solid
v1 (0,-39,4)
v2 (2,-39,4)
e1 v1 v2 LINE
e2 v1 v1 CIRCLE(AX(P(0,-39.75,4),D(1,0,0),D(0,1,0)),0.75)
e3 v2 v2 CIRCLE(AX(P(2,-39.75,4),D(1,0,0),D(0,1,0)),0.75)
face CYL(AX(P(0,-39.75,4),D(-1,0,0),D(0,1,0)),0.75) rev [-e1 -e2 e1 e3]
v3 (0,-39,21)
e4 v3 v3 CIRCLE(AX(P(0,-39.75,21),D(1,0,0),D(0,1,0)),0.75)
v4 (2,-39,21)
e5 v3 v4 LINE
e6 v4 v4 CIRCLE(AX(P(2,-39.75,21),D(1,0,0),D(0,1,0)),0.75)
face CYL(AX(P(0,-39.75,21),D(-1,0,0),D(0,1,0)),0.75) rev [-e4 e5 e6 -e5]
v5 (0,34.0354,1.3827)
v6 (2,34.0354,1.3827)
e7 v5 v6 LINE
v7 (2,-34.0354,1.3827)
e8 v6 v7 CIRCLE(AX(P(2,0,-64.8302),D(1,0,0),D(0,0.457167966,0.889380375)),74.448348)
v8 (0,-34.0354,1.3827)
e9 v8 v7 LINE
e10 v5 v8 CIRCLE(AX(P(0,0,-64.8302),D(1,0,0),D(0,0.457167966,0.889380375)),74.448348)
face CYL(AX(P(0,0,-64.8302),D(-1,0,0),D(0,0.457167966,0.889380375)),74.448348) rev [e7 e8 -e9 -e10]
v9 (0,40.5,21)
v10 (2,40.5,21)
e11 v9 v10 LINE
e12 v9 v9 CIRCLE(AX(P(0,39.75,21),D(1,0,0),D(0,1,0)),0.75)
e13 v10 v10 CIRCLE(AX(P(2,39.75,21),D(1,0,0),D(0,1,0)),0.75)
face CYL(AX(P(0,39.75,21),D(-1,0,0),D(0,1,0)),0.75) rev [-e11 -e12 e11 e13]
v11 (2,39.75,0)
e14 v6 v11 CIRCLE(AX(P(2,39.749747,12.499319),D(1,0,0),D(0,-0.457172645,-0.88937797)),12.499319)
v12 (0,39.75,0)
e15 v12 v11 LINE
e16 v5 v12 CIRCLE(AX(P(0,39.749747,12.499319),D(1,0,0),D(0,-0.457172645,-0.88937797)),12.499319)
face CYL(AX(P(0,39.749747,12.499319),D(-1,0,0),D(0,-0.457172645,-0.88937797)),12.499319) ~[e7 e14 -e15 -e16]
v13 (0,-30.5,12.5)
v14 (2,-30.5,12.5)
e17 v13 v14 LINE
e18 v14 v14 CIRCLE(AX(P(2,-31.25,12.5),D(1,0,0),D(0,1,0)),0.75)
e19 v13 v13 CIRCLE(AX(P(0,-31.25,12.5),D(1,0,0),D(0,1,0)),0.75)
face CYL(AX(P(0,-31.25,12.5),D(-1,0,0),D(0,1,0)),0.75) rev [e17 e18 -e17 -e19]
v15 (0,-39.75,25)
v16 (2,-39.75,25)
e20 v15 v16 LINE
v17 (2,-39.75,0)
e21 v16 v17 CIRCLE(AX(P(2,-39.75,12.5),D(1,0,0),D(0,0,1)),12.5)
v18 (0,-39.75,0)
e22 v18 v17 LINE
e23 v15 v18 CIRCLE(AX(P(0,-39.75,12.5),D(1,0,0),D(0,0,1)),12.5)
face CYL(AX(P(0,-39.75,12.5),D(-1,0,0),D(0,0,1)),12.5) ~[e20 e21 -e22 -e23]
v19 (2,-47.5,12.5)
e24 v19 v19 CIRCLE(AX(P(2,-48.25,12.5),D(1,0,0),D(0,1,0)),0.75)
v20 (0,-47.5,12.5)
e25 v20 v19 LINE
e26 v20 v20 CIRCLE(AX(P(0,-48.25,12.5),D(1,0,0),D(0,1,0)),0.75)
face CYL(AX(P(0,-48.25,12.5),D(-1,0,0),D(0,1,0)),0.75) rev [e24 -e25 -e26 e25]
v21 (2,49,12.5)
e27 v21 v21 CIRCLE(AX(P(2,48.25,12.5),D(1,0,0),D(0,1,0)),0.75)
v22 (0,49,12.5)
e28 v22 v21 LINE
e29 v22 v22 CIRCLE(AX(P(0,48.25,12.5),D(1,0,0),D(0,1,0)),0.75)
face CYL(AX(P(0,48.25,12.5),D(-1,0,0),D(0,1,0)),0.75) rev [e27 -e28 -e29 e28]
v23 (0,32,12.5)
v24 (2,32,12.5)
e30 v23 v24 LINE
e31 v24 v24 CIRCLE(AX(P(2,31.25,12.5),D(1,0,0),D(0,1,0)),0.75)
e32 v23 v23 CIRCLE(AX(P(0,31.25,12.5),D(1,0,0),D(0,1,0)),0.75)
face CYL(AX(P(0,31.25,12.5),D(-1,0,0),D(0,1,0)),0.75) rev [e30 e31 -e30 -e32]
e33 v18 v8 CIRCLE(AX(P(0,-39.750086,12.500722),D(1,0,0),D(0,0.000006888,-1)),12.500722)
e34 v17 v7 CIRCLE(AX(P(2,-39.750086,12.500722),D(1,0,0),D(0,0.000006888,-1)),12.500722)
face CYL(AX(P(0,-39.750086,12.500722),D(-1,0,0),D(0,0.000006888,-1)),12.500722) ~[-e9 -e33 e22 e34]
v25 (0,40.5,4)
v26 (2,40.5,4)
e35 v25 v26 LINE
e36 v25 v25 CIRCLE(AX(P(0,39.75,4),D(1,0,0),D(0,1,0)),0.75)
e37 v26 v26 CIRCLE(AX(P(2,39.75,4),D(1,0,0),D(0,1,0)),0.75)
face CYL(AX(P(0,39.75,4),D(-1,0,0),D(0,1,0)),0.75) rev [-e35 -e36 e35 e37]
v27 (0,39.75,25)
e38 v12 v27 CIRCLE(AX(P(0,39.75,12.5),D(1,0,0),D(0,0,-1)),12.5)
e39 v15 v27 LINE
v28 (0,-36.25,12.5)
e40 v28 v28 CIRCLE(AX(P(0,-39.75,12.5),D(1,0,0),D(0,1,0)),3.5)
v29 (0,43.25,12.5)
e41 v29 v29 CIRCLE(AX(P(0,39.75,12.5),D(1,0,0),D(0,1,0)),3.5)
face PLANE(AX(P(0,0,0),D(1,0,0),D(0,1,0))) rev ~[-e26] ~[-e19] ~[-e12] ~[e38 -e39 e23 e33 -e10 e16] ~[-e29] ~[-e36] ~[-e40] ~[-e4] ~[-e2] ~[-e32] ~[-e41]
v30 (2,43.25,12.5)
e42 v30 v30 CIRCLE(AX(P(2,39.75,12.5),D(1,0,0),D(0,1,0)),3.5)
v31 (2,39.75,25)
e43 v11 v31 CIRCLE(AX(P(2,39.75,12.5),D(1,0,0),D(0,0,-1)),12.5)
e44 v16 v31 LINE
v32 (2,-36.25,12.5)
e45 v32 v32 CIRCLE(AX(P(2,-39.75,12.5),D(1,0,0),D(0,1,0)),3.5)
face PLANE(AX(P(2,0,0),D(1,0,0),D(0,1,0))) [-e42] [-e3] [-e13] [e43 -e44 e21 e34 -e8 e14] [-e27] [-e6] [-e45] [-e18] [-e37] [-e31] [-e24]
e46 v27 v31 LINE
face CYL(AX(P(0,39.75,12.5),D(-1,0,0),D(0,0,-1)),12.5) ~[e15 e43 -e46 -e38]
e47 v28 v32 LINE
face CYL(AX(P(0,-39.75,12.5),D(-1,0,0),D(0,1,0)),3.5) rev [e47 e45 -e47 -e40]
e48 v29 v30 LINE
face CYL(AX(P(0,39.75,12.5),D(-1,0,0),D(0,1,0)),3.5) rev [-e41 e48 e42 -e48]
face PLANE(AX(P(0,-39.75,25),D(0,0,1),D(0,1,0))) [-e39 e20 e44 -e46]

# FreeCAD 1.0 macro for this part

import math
import FreeCAD as App
import Part
import Sketcher

doc = App.newDocument("Part")
body = doc.addObject("PartDesign::Body", "Body")

# Sketch on YZ plane
sketch1 = body.newObject("Sketcher::SketchObject", "Sketch")
sketch1.AttachmentSupport = (doc.getObject("YZ_Plane"), [""])
sketch1.MapMode = "FlatFace"
sketch1.addGeometry([
    Part.LineSegment(App.Vector(39.8, 25, 0), App.Vector(-39.8, 25, 0)),  # 0
    Part.ArcOfCircle(Part.Circle(App.Vector(-39.8, 12.5, 0), App.Vector(0, 0, 1), 12.5), math.radians(90), math.radians(270)),  # 1
    Part.ArcOfCircle(Part.Circle(App.Vector(-39.8, 12.5, 0), App.Vector(0, 0, 1), 12.5), math.radians(-90), math.radians(-63)),  # 2
    Part.ArcOfCircle(Part.Circle(App.Vector(0, -64.8, 0), App.Vector(0, 0, 1), 74.4), math.radians(63), math.radians(117)),  # 3
    Part.ArcOfCircle(Part.Circle(App.Vector(39.8, 12.5, 0), App.Vector(0, 0, 1), 12.5), math.radians(-117), math.radians(-90)),  # 4
    Part.ArcOfCircle(Part.Circle(App.Vector(39.8, 12.5, 0), App.Vector(0, 0, 1), 12.5), math.radians(-90), math.radians(90)),  # 5
    Part.Circle(App.Vector(-39.8, 4, 0), App.Vector(0, 0, 1), 0.8),  # 6
    Part.Circle(App.Vector(39.8, 4, 0), App.Vector(0, 0, 1), 0.8),  # 7
    Part.Circle(App.Vector(-48.2, 12.5, 0), App.Vector(0, 0, 1), 0.8),  # 8
    Part.Circle(App.Vector(-39.8, 12.5, 0), App.Vector(0, 0, 1), 3.5),  # 9
    Part.Circle(App.Vector(-31.2, 12.5, 0), App.Vector(0, 0, 1), 0.8),  # 10
    Part.Circle(App.Vector(-39.8, 21, 0), App.Vector(0, 0, 1), 0.8),  # 11
    Part.Circle(App.Vector(31.2, 12.5, 0), App.Vector(0, 0, 1), 0.8),  # 12
    Part.Circle(App.Vector(39.8, 12.5, 0), App.Vector(0, 0, 1), 3.5),  # 13
    Part.Circle(App.Vector(48.2, 12.5, 0), App.Vector(0, 0, 1), 0.8),  # 14
    Part.Circle(App.Vector(39.8, 21, 0), App.Vector(0, 0, 1), 0.8),  # 15
], False)
sketch1.addConstraint([
    Sketcher.Constraint("Tangent", 0, 2, 1, 1),
    Sketcher.Constraint("Tangent", 1, 2, 2, 1),
    Sketcher.Constraint("Tangent", 2, 2, 3, 2),
    Sketcher.Constraint("Tangent", 3, 1, 4, 1),
    Sketcher.Constraint("Tangent", 4, 2, 5, 1),
    Sketcher.Constraint("Tangent", 5, 2, 0, 1),
    Sketcher.Constraint("Horizontal", 0),
    Sketcher.Constraint("Coincident", 9, 3, 1, 3),
    Sketcher.Constraint("Coincident", 13, 3, 4, 3),
    Sketcher.Constraint("Equal", 1, 2),
    Sketcher.Constraint("Equal", 2, 4),
    Sketcher.Constraint("Equal", 4, 5),
    Sketcher.Constraint("Equal", 6, 7),
    Sketcher.Constraint("Equal", 7, 8),
    Sketcher.Constraint("Equal", 8, 10),
    Sketcher.Constraint("Equal", 10, 11),
    Sketcher.Constraint("Equal", 11, 12),
    Sketcher.Constraint("Equal", 9, 13),
    Sketcher.Constraint("Equal", 12, 14),
    Sketcher.Constraint("Equal", 14, 15),
    Sketcher.Constraint("Symmetric", 1, 2, 4, 2, -1, 1),
    Sketcher.Constraint("Symmetric", 6, 3, 7, 3, -2),
    Sketcher.Constraint("Symmetric", 10, 3, 12, 3, -2),
    Sketcher.Constraint("Symmetric", 8, 3, 14, 3, -2),
    Sketcher.Constraint("Symmetric", 11, 3, 15, 3, -2),
    Sketcher.Constraint("PointOnObject", 3, 3, -2),
    Sketcher.Constraint("Horizontal", 5, 3, 8, 3),
    Sketcher.Constraint("Horizontal", 9, 3, 10, 3),
    Sketcher.Constraint("Vertical", 2, 3, 6, 3),
    Sketcher.Constraint("Vertical", 9, 3, 11, 3),
    Sketcher.Constraint("Vertical", 0, 2, 1, 2),
    Sketcher.Constraint("Diameter", 9, 7.0),
    Sketcher.Constraint("Diameter", 6, 1.5),
    Sketcher.Constraint("Radius", 1, 12.5),
    Sketcher.Constraint("DistanceX", 0, 2, 0, 1, 79.5),
    Sketcher.Constraint("DistanceY", 6, 3, 1, 3, 8.5),
    Sketcher.Constraint("DistanceX", 8, 3, 1, 3, 8.5),
    Sketcher.Constraint("DistanceX", 1, 3, 10, 3, 8.5),
    Sketcher.Constraint("DistanceY", 1, 3, 11, 3, 8.5),
    Sketcher.Constraint("Radius", 3, 74.4483),
])
pad1 = body.newObject("PartDesign::Pad", "Pad")
pad1.Profile = sketch1
pad1.Length = 2

doc.recompute()
